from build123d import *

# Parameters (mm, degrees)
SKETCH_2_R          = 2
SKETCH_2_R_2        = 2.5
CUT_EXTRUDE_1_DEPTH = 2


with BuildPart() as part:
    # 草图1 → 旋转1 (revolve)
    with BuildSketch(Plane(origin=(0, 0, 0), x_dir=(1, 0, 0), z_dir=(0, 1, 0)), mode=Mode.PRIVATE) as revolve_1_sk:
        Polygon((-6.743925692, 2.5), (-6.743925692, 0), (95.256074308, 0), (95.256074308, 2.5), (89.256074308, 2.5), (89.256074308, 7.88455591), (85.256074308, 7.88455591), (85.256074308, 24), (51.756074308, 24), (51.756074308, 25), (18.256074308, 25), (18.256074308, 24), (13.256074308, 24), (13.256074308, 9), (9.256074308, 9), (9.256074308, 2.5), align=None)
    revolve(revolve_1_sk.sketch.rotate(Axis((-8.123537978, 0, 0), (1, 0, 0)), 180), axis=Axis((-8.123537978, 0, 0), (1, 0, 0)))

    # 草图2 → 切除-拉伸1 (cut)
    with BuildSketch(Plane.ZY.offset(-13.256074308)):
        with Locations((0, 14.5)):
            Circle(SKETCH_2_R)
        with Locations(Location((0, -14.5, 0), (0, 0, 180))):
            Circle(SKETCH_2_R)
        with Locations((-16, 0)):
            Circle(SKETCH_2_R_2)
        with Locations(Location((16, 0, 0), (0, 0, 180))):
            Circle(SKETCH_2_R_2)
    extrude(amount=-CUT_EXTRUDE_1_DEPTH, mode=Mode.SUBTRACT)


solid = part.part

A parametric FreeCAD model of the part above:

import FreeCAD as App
import Part
import Sketcher

V = App.Vector
Q = App.Units.Quantity

doc = App.newDocument("Part")
body = doc.addObject("PartDesign::Body", "Body")

# Sketch on XZ plane
sketch1 = doc.addObject("Sketcher::SketchObject", "Sketch")
body.addObject(sketch1)
sketch1.AttachmentSupport = (doc.XZ_Plane, [""])
sketch1.MapMode = "FlatFace"
sketch1.addGeometry(Part.LineSegment(V(-6.743926, -2.5, 0), V(-6.743926, 0, 0)), False)
sketch1.addGeometry(Part.LineSegment(V(-6.743926, 0, 0), V(95.256074, 0, 0)), False)
sketch1.addGeometry(Part.LineSegment(V(95.256074, 0, 0), V(95.256074, -2.5, 0)), False)
sketch1.addGeometry(Part.LineSegment(V(95.256074, -2.5, 0), V(89.256074, -2.5, 0)), False)
sketch1.addGeometry(Part.LineSegment(V(89.256074, -2.5, 0), V(89.256074, -7.884556, 0)), False)
sketch1.addGeometry(Part.LineSegment(V(89.256074, -7.884556, 0), V(85.256074, -7.884556, 0)), False)
sketch1.addGeometry(Part.LineSegment(V(85.256074, -7.884556, 0), V(85.256074, -24, 0)), False)
sketch1.addGeometry(Part.LineSegment(V(85.256074, -24, 0), V(51.756074, -24, 0)), False)
sketch1.addGeometry(Part.LineSegment(V(51.756074, -24, 0), V(51.756074, -25, 0)), False)
sketch1.addGeometry(Part.LineSegment(V(51.756074, -25, 0), V(18.256074, -25, 0)), False)
sketch1.addGeometry(Part.LineSegment(V(18.256074, -25, 0), V(18.256074, -24, 0)), False)
sketch1.addGeometry(Part.LineSegment(V(18.256074, -24, 0), V(13.256074, -24, 0)), False)
sketch1.addGeometry(Part.LineSegment(V(13.256074, -24, 0), V(13.256074, -9, 0)), False)
sketch1.addGeometry(Part.LineSegment(V(13.256074, -9, 0), V(9.256074, -9, 0)), False)
sketch1.addGeometry(Part.LineSegment(V(9.256074, -9, 0), V(9.256074, -2.5, 0)), False)
sketch1.addGeometry(Part.LineSegment(V(9.256074, -2.5, 0), V(-6.743926, -2.5, 0)), False)
sketch1.addConstraint(Sketcher.Constraint("Coincident", 0, 2, 1, 1))
sketch1.addConstraint(Sketcher.Constraint("Coincident", 1, 2, 2, 1))
sketch1.addConstraint(Sketcher.Constraint("Coincident", 2, 2, 3, 1))
sketch1.addConstraint(Sketcher.Constraint("Coincident", 3, 2, 4, 1))
sketch1.addConstraint(Sketcher.Constraint("Coincident", 4, 2, 5, 1))
sketch1.addConstraint(Sketcher.Constraint("Coincident", 5, 2, 6, 1))
sketch1.addConstraint(Sketcher.Constraint("Coincident", 6, 2, 7, 1))
sketch1.addConstraint(Sketcher.Constraint("Coincident", 7, 2, 8, 1))
sketch1.addConstraint(Sketcher.Constraint("Coincident", 8, 2, 9, 1))
sketch1.addConstraint(Sketcher.Constraint("Coincident", 9, 2, 10, 1))
sketch1.addConstraint(Sketcher.Constraint("Coincident", 10, 2, 11, 1))
sketch1.addConstraint(Sketcher.Constraint("Coincident", 11, 2, 12, 1))
sketch1.addConstraint(Sketcher.Constraint("Coincident", 12, 2, 13, 1))
sketch1.addConstraint(Sketcher.Constraint("Coincident", 13, 2, 14, 1))
sketch1.addConstraint(Sketcher.Constraint("Coincident", 14, 2, 15, 1))
sketch1.addConstraint(Sketcher.Constraint("Coincident", 15, 2, 0, 1))
sketch1.addConstraint(Sketcher.Constraint("Vertical", 0))
sketch1.addConstraint(Sketcher.Constraint("Horizontal", 1))
sketch1.addConstraint(Sketcher.Constraint("Vertical", 2))
sketch1.addConstraint(Sketcher.Constraint("Horizontal", 3))
sketch1.addConstraint(Sketcher.Constraint("Vertical", 4))
sketch1.addConstraint(Sketcher.Constraint("Horizontal", 5))
sketch1.addConstraint(Sketcher.Constraint("Vertical", 6))
sketch1.addConstraint(Sketcher.Constraint("Horizontal", 7))
sketch1.addConstraint(Sketcher.Constraint("Vertical", 8))
sketch1.addConstraint(Sketcher.Constraint("Horizontal", 9))
sketch1.addConstraint(Sketcher.Constraint("Vertical", 10))
sketch1.addConstraint(Sketcher.Constraint("Horizontal", 11))
sketch1.addConstraint(Sketcher.Constraint("Vertical", 12))
sketch1.addConstraint(Sketcher.Constraint("Horizontal", 13))
sketch1.addConstraint(Sketcher.Constraint("Vertical", 14))
sketch1.addConstraint(Sketcher.Constraint("Horizontal", 15))
sketch1.addConstraint(Sketcher.Constraint("PointOnObject", 0, 2, -1))
sketch1.addConstraint(Sketcher.Constraint("Horizontal", 7, 2, 10, 2))
sketch1.addConstraint(Sketcher.Constraint("Horizontal", 3, 2, 14, 2))
sketch1.addConstraint(Sketcher.Constraint("Equal", 7, 9))
sketch1.addConstraint(Sketcher.Constraint("Equal", 5, 13))
sketch1.addConstraint(Sketcher.Constraint("DistanceX", 1, 1, 1, 2, Q("102 mm")))
sketch1.addConstraint(Sketcher.Constraint("DistanceX", 3, 2, 3, 1, Q("6 mm")))
sketch1.addConstraint(Sketcher.Constraint("DistanceX", 5, 2, 5, 1, Q("4 mm")))
sketch1.addConstraint(Sketcher.Constraint("DistanceX", 11, 2, 11, 1, Q("5 mm")))
sketch1.addConstraint(Sketcher.Constraint("DistanceX", 15, 2, 15, 1, Q("16 mm")))
sketch1.addConstraint(Sketcher.Constraint("DistanceY", 8, 2, 8, 1, Q("1 mm")))
sketch1.addConstraint(Sketcher.Constraint("DistanceY", 12, 1, 12, 2, Q("15 mm")))
sketch1.addConstraint(Sketcher.Constraint("DistanceY", 0, 1, 0, 2, Q("2.5 mm")))
sketch1.addConstraint(Sketcher.Constraint("DistanceY", 14, 1, 14, 2, Q("6.5 mm")))
sketch1.addConstraint(Sketcher.Constraint("DistanceY", 4, 2, 4, 1, Q("5.384556 mm")))
sketch1.addConstraint(Sketcher.Constraint("DistanceX", 0, 2, -1, 1, Q("6.743926 mm")))
revolution = doc.addObject("PartDesign::Revolution", "Revolution")
body.addObject(revolution)
revolution.Profile = sketch1
revolution.ReferenceAxis = (sketch1, ["H_Axis"])
revolution.Angle = 360

# Sketch on YZ plane
sketch2 = doc.addObject("Sketcher::SketchObject", "Sketch001")
body.addObject(sketch2)
sketch2.AttachmentSupport = (doc.YZ_Plane, [""])
sketch2.MapMode = "FlatFace"
sketch2.AttachmentOffset = App.Placement(V(0, 0, 13.256074), App.Rotation())
sketch2.addGeometry(Part.Circle(V(14.5, 0, 0), V(0, 0, 1), 2), False)
sketch2.addGeometry(Part.Circle(V(-14.5, 0, 0), V(0, 0, 1), 2), False)
sketch2.addGeometry(Part.Circle(V(0, -16, 0), V(0, 0, 1), 2.5), False)
sketch2.addGeometry(Part.Circle(V(0, 16, 0), V(0, 0, 1), 2.5), False)
sketch2.addConstraint(Sketcher.Constraint("Equal", 0, 1))
sketch2.addConstraint(Sketcher.Constraint("Equal", 2, 3))
sketch2.addConstraint(Sketcher.Constraint("Symmetric", 0, 3, 1, 3, -1, 1))
sketch2.addConstraint(Sketcher.Constraint("Symmetric", 2, 3, 3, 3, -1, 1))
sketch2.addConstraint(Sketcher.Constraint("PointOnObject", 0, 3, -1))
sketch2.addConstraint(Sketcher.Constraint("PointOnObject", 2, 3, -2))
sketch2.addConstraint(Sketcher.Constraint("Diameter", 0, Q("4 mm")))
sketch2.addConstraint(Sketcher.Constraint("Diameter", 2, Q("5 mm")))
sketch2.addConstraint(Sketcher.Constraint("DistanceY", 2, 3, -1, 1, Q("16 mm")))
sketch2.addConstraint(Sketcher.Constraint("DistanceX", 1, 3, 0, 3, Q("29 mm")))
pocket1 = doc.addObject("PartDesign::Pocket", "Pocket")
body.addObject(pocket1)
pocket1.Profile = sketch2
pocket1.Length = 2
pocket1.Reversed = True

doc.recompute()
